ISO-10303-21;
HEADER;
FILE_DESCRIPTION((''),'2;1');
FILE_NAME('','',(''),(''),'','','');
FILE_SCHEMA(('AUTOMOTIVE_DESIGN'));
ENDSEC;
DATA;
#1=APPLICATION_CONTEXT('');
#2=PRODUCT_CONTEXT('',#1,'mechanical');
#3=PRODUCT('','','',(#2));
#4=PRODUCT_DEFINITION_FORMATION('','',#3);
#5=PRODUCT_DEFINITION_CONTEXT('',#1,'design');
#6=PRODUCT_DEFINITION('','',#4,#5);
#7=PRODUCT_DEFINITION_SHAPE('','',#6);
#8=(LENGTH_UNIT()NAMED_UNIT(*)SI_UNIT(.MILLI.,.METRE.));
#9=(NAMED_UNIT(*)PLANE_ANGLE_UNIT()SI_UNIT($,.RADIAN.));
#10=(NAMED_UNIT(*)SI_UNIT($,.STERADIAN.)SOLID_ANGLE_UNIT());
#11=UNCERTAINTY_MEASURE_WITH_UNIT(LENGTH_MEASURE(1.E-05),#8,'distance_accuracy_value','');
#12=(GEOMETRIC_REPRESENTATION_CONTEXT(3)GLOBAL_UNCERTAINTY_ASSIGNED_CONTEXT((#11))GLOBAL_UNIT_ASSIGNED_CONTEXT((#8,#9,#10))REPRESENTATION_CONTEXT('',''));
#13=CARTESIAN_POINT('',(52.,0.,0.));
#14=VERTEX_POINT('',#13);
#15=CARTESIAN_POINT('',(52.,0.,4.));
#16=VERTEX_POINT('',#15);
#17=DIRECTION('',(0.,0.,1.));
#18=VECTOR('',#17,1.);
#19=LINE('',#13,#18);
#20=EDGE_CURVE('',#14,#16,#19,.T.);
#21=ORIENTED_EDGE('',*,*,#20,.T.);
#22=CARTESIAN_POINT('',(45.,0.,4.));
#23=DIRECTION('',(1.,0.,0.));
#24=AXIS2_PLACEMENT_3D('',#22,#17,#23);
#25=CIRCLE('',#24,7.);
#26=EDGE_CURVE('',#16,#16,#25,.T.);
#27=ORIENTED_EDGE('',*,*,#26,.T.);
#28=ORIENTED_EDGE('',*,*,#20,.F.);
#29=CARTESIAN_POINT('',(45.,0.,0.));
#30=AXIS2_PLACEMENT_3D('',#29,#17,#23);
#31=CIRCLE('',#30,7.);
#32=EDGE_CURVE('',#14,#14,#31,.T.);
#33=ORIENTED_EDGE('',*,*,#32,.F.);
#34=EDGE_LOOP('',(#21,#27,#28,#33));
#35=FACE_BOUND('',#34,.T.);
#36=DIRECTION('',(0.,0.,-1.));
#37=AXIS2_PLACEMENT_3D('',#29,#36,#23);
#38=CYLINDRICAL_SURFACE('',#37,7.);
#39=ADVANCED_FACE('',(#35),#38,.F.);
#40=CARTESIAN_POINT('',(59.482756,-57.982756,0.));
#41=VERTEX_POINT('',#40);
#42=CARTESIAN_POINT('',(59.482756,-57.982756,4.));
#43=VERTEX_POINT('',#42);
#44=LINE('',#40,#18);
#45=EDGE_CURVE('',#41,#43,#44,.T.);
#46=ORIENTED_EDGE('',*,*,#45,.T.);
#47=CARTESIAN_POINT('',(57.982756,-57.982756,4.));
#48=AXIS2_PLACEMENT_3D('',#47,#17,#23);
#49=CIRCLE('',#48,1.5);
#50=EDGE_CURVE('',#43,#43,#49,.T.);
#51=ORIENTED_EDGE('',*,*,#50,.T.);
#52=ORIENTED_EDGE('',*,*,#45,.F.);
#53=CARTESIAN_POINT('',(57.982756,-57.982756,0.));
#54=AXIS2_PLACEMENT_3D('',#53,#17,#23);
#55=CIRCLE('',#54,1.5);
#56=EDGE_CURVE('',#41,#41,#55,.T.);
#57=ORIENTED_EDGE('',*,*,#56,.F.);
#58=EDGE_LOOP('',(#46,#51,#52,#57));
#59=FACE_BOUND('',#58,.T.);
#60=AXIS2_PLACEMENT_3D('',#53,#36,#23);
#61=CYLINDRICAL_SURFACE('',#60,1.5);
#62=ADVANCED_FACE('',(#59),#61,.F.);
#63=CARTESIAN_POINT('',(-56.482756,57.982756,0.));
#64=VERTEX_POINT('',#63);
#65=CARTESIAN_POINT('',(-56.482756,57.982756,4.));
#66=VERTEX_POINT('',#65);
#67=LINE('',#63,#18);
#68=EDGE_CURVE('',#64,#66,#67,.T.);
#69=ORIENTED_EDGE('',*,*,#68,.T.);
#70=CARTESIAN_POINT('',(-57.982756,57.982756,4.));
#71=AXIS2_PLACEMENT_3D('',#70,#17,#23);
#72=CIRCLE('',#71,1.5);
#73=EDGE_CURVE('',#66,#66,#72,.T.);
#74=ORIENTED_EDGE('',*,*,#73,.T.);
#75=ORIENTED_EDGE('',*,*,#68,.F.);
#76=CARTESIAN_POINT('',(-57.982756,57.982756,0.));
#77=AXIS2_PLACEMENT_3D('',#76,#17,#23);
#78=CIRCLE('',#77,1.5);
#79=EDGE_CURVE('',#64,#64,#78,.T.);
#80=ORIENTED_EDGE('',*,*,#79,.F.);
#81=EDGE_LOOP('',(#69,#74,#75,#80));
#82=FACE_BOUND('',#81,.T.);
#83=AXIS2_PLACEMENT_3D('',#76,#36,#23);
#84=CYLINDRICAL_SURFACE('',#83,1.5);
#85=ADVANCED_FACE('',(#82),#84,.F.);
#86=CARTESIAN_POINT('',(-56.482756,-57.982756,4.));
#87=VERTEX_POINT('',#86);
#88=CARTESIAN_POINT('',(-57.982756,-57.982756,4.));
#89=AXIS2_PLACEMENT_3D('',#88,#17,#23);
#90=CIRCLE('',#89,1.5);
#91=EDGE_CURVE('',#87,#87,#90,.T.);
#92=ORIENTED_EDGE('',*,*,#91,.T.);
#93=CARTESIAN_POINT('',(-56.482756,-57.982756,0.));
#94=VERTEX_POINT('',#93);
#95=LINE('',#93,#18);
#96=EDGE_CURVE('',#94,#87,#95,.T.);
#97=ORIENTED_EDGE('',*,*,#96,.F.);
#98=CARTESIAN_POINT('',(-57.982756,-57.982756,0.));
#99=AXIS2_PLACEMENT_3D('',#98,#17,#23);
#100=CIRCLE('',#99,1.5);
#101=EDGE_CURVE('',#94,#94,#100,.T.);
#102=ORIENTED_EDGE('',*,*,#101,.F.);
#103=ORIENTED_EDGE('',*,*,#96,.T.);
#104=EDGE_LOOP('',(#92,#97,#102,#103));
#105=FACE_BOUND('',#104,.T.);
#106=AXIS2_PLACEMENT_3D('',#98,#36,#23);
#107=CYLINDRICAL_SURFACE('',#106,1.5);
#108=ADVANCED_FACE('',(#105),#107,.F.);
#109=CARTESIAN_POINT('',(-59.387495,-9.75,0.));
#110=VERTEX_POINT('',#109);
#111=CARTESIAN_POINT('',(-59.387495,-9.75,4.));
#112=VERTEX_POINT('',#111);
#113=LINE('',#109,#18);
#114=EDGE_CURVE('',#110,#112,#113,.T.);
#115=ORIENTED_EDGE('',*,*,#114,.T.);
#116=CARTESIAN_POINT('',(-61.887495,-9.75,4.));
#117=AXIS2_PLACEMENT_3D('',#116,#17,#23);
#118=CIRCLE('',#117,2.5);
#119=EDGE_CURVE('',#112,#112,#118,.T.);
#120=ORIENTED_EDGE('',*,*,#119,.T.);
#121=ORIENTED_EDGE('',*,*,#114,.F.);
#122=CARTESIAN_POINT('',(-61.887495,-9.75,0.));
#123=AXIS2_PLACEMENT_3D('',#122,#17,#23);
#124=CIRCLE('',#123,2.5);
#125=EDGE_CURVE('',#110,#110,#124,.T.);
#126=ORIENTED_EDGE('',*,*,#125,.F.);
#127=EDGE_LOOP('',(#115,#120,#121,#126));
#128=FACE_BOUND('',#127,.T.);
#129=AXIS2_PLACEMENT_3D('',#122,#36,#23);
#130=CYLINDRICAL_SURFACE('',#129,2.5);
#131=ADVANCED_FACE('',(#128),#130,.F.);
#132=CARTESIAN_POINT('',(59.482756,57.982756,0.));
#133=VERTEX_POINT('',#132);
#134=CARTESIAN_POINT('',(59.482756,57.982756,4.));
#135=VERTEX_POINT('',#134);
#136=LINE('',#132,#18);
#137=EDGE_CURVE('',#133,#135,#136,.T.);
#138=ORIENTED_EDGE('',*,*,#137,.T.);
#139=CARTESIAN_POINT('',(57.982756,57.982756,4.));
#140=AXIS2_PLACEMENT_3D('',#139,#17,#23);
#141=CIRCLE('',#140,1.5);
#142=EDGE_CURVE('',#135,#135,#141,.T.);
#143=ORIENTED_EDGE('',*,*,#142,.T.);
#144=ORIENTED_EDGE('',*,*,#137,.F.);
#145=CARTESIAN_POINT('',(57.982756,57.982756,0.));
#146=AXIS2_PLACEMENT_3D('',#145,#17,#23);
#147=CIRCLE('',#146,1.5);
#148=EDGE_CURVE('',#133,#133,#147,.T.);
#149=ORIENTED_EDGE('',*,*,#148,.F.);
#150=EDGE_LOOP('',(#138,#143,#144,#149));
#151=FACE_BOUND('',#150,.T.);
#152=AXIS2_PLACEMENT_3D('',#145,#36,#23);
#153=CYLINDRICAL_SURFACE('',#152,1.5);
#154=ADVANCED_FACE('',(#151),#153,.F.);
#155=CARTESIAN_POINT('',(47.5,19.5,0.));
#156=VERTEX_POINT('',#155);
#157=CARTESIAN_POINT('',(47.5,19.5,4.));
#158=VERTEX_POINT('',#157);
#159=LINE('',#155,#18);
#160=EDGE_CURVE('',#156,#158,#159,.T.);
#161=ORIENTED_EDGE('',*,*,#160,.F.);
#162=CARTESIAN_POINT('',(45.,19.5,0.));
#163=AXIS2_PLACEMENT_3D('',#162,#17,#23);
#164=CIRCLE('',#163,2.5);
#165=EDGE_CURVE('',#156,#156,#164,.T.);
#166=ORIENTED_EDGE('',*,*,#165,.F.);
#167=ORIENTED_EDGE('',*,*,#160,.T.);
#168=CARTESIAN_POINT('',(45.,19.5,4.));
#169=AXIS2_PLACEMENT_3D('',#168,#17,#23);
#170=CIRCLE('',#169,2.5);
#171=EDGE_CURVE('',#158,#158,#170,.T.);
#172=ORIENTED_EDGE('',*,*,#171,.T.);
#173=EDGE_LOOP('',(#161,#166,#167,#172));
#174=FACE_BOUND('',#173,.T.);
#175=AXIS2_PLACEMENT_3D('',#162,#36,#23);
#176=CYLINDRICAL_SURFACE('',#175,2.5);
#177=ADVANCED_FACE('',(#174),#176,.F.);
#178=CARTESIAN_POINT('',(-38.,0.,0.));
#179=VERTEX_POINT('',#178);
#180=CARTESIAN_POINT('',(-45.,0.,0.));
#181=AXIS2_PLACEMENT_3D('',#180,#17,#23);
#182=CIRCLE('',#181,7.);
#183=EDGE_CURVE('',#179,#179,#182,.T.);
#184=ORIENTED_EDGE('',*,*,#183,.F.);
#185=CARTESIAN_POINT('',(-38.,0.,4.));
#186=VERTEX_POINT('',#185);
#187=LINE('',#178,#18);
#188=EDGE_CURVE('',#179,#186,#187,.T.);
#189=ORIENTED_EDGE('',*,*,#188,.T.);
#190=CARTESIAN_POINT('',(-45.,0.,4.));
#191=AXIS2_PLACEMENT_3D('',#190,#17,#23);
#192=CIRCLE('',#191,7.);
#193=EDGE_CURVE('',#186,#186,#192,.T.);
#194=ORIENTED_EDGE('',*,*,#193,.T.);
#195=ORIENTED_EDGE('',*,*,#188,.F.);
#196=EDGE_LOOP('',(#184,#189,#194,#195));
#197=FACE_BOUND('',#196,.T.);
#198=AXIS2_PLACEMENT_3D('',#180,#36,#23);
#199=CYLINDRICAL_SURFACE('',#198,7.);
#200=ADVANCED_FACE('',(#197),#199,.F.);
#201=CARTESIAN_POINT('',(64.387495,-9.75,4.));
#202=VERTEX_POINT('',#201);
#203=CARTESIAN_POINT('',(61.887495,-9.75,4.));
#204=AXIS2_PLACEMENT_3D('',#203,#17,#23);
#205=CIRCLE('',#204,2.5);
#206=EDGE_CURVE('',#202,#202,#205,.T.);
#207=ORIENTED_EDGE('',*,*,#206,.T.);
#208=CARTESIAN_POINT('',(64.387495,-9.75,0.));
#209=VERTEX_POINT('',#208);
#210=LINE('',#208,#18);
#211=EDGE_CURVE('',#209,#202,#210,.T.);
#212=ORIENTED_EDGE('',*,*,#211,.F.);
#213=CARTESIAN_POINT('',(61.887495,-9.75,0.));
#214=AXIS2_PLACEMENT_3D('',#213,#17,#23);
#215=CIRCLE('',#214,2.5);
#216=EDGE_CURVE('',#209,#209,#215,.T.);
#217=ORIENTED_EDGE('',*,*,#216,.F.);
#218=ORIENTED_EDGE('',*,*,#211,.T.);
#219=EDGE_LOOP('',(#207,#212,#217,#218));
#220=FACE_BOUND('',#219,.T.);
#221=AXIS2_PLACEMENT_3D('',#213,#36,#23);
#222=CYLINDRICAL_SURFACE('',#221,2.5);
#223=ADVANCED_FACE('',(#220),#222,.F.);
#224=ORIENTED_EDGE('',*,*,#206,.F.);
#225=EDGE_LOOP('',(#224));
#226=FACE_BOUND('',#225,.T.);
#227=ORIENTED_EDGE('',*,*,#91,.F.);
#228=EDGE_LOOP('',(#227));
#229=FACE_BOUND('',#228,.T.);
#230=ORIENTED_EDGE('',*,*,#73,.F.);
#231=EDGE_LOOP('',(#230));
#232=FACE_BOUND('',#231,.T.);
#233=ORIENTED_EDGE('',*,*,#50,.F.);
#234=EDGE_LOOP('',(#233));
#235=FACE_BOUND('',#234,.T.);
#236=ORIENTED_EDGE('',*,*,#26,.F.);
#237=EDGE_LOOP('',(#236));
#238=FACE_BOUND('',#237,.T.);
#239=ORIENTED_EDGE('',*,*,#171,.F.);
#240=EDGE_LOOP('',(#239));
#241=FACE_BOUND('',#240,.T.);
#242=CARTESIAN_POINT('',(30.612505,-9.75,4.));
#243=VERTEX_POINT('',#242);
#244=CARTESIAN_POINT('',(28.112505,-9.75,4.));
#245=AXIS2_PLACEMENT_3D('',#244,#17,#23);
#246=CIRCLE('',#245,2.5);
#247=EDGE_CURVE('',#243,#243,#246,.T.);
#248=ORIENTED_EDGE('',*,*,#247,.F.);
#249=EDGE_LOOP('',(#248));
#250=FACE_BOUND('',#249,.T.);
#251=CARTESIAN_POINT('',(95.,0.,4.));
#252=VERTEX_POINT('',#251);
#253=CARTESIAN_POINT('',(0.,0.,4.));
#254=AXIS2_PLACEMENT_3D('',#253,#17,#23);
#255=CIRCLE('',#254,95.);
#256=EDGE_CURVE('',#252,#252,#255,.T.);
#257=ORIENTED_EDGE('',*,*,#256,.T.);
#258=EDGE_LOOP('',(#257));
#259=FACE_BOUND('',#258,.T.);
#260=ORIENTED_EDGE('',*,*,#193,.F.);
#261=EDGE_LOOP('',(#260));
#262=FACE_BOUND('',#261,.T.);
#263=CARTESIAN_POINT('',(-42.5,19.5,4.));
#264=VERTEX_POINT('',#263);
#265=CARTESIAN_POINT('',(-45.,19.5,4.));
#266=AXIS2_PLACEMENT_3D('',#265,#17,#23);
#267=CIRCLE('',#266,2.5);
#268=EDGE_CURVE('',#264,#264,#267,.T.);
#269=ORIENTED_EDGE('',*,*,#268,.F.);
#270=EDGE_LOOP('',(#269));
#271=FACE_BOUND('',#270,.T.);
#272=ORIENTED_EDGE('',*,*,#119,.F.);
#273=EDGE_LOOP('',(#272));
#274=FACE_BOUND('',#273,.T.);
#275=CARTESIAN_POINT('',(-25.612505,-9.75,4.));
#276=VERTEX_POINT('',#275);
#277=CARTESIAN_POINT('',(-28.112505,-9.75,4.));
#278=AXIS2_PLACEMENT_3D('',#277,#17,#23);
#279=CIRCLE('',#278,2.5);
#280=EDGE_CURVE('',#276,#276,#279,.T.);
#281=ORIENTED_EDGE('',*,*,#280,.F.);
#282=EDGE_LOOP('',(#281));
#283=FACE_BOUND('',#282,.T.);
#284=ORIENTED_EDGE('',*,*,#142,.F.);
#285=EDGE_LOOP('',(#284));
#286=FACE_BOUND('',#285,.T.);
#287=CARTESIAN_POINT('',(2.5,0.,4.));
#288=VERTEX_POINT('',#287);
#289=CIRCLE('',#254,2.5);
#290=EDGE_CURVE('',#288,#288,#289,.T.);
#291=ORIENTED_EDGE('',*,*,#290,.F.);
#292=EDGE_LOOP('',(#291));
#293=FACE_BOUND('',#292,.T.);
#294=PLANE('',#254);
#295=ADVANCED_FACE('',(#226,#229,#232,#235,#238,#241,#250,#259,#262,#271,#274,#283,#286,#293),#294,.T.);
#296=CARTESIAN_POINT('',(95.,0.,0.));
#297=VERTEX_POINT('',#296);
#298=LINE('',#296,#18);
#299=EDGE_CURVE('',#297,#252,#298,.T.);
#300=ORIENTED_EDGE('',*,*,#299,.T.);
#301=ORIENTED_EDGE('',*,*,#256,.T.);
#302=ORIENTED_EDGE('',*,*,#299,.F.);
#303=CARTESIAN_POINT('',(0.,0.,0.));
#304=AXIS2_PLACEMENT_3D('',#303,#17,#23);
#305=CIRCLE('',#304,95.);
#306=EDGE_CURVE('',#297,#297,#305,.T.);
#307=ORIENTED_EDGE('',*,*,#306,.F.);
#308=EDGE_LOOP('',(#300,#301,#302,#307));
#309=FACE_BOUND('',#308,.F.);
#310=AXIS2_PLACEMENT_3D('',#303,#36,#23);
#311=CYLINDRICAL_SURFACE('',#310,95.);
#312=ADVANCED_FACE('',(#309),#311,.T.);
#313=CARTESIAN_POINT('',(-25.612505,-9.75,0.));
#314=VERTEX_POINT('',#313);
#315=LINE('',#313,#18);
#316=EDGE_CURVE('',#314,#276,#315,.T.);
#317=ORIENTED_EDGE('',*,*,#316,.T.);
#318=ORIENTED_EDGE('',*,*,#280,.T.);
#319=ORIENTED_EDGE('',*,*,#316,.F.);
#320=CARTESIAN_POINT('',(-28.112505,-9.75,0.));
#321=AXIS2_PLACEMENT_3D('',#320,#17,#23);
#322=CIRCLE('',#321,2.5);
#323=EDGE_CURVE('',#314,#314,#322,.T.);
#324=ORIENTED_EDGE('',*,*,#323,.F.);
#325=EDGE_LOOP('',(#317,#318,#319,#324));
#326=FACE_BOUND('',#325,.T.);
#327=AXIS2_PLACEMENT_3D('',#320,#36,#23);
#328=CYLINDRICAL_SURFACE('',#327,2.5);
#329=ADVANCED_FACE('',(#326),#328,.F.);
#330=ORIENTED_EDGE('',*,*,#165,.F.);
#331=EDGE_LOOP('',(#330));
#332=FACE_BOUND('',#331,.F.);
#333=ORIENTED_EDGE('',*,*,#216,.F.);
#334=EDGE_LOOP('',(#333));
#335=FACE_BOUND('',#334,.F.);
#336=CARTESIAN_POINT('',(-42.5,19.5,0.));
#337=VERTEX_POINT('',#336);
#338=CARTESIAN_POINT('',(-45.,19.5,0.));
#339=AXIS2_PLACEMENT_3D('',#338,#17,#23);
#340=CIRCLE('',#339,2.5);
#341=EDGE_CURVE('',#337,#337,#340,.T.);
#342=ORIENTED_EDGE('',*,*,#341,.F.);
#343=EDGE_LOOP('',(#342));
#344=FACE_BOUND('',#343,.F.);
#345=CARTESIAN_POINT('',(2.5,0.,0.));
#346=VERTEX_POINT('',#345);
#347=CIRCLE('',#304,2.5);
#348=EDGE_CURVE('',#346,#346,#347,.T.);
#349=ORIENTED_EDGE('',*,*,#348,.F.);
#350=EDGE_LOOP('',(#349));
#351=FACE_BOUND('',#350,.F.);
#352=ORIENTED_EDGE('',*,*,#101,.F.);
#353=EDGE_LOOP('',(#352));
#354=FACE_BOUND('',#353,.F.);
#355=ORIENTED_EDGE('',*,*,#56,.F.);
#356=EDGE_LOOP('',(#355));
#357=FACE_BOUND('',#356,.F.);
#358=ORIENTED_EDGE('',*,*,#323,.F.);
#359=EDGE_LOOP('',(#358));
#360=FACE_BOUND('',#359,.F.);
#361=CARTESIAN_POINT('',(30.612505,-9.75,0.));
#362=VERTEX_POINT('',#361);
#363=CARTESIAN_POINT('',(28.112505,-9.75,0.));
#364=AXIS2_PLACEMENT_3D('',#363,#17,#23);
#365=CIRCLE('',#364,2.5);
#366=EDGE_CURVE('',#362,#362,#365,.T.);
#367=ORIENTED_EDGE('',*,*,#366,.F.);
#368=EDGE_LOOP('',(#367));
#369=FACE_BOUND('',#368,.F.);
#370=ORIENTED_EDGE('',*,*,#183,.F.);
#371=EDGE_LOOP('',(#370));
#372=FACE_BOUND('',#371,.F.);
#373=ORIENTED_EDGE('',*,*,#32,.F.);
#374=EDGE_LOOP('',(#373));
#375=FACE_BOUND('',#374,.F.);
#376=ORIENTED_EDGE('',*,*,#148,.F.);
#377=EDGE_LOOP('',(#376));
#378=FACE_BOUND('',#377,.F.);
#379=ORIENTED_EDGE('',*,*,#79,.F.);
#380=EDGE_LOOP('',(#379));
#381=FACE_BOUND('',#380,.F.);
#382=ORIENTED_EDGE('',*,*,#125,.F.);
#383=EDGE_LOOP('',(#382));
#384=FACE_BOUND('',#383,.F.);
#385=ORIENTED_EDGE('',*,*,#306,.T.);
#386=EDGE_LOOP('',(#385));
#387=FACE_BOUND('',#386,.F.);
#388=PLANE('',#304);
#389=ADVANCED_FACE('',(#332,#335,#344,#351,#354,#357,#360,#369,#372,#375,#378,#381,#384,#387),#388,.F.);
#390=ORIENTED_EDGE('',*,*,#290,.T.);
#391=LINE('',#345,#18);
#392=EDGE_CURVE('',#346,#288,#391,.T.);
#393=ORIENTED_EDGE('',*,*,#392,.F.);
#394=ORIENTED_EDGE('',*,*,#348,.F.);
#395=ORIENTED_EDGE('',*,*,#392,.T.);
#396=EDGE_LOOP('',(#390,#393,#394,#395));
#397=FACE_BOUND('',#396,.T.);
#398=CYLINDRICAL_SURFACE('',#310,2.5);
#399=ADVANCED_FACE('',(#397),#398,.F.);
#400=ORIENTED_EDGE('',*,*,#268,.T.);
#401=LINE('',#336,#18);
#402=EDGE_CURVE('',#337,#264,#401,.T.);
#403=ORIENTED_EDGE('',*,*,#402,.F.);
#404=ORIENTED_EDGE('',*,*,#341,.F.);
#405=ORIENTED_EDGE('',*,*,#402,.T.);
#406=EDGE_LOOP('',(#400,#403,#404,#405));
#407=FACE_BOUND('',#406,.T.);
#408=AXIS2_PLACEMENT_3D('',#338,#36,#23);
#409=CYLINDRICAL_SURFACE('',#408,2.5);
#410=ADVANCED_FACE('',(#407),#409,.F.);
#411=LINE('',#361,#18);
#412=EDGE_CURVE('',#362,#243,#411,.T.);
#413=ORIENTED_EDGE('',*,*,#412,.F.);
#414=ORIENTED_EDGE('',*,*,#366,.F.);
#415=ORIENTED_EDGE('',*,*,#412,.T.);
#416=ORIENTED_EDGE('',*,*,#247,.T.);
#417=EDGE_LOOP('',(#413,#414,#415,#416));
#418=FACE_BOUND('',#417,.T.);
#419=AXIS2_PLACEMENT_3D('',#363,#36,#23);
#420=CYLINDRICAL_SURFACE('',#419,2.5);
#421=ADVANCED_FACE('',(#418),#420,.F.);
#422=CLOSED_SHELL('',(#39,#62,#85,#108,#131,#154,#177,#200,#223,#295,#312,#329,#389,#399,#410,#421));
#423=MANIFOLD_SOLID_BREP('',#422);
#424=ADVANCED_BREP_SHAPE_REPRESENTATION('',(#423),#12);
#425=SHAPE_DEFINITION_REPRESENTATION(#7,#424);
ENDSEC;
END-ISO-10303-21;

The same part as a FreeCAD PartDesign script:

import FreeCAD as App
import Part
import Sketcher

V = App.Vector

doc = App.newDocument("Part")
body = doc.addObject("PartDesign::Body", "Body")

# Sketch on XY plane
sketch1 = body.newObject("Sketcher::SketchObject", "Sketch")
sketch1.AttachmentSupport = (doc.getObject("XY_Plane"), [""])
sketch1.MapMode = "FlatFace"
sketch1.addGeometry([
    Part.Circle(V(0, 0, 0), V(0, 0, 1), 95),  # 0
    Part.Circle(V(-57.982756, -57.982756, 0), V(0, 0, 1), 1.5),  # 1
    Part.Circle(V(-61.887495, -9.75, 0), V(0, 0, 1), 2.5),  # 2
    Part.Circle(V(-45, 0, 0), V(0, 0, 1), 7),  # 3
    Part.Circle(V(-28.112505, -9.75, 0), V(0, 0, 1), 2.5),  # 4
    Part.Circle(V(57.982756, -57.982756, 0), V(0, 0, 1), 1.5),  # 5
    Part.Circle(V(0, 0, 0), V(0, 0, 1), 2.5),  # 6
    Part.Circle(V(28.112505, -9.75, 0), V(0, 0, 1), 2.5),  # 7
    Part.Circle(V(45, 0, 0), V(0, 0, 1), 7),  # 8
    Part.Circle(V(61.887495, -9.75, 0), V(0, 0, 1), 2.5),  # 9
    Part.Circle(V(-45, 19.5, 0), V(0, 0, 1), 2.5),  # 10
    Part.Circle(V(-57.982756, 57.982756, 0), V(0, 0, 1), 1.5),  # 11
    Part.Circle(V(45, 19.5, 0), V(0, 0, 1), 2.5),  # 12
    Part.Circle(V(57.982756, 57.982756, 0), V(0, 0, 1), 1.5),  # 13
], False)
sketch1.addConstraint([
    Sketcher.Constraint("Coincident", 0, 3, -1, 1),
    Sketcher.Constraint("Coincident", 6, 3, -1, 1),
    Sketcher.Constraint("Equal", 2, 4),
    Sketcher.Constraint("Equal", 1, 5),
    Sketcher.Constraint("Equal", 4, 6),
    Sketcher.Constraint("Equal", 6, 7),
    Sketcher.Constraint("Equal", 3, 8),
    Sketcher.Constraint("Equal", 7, 9),
    Sketcher.Constraint("Equal", 9, 10),
    Sketcher.Constraint("Equal", 5, 11),
    Sketcher.Constraint("Equal", 10, 12),
    Sketcher.Constraint("Equal", 11, 13),
    Sketcher.Constraint("Symmetric", 3, 3, 8, 3, -1, 1),
    Sketcher.Constraint("Symmetric", 5, 3, 11, 3, -1, 1),
    Sketcher.Constraint("Symmetric", 1, 3, 13, 3, -1, 1),
    Sketcher.Constraint("Symmetric", 1, 3, 5, 3, -2),
    Sketcher.Constraint("Symmetric", 4, 3, 7, 3, -2),
    Sketcher.Constraint("Symmetric", 2, 3, 9, 3, -2),
    Sketcher.Constraint("Symmetric", 10, 3, 12, 3, -2),
    Sketcher.Constraint("PointOnObject", 3, 3, -1),
    Sketcher.Constraint("Horizontal", 2, 3, 4, 3),
    Sketcher.Constraint("Vertical", 3, 3, 10, 3),
    Sketcher.Constraint("Diameter", 0, 190.0),
    Sketcher.Constraint("Diameter", 1, 3.0),
    Sketcher.Constraint("Diameter", 2, 5.0),
    Sketcher.Constraint("Diameter", 3, 14.0),
    Sketcher.Constraint("DistanceX", 3, 3, -1, 1, 45.0),
    Sketcher.Constraint("DistanceY", -1, 1, 10, 3, 19.5),
    Sketcher.Constraint("DistanceY", 2, 3, -1, 1, 9.75),
    Sketcher.Constraint("DistanceX", 2, 3, 1, 3, 3.904739),
    Sketcher.Constraint("DistanceX", 2, 3, 4, 3, 33.77499),
    Sketcher.Constraint("DistanceX", 4, 3, 5, 3, 86.095261),
    Sketcher.Constraint("DistanceY", 1, 3, -1, 1, 57.982756),
])
pad1 = body.newObject("PartDesign::Pad", "Pad")
pad1.Profile = sketch1
pad1.Length = 4

doc.recompute()
